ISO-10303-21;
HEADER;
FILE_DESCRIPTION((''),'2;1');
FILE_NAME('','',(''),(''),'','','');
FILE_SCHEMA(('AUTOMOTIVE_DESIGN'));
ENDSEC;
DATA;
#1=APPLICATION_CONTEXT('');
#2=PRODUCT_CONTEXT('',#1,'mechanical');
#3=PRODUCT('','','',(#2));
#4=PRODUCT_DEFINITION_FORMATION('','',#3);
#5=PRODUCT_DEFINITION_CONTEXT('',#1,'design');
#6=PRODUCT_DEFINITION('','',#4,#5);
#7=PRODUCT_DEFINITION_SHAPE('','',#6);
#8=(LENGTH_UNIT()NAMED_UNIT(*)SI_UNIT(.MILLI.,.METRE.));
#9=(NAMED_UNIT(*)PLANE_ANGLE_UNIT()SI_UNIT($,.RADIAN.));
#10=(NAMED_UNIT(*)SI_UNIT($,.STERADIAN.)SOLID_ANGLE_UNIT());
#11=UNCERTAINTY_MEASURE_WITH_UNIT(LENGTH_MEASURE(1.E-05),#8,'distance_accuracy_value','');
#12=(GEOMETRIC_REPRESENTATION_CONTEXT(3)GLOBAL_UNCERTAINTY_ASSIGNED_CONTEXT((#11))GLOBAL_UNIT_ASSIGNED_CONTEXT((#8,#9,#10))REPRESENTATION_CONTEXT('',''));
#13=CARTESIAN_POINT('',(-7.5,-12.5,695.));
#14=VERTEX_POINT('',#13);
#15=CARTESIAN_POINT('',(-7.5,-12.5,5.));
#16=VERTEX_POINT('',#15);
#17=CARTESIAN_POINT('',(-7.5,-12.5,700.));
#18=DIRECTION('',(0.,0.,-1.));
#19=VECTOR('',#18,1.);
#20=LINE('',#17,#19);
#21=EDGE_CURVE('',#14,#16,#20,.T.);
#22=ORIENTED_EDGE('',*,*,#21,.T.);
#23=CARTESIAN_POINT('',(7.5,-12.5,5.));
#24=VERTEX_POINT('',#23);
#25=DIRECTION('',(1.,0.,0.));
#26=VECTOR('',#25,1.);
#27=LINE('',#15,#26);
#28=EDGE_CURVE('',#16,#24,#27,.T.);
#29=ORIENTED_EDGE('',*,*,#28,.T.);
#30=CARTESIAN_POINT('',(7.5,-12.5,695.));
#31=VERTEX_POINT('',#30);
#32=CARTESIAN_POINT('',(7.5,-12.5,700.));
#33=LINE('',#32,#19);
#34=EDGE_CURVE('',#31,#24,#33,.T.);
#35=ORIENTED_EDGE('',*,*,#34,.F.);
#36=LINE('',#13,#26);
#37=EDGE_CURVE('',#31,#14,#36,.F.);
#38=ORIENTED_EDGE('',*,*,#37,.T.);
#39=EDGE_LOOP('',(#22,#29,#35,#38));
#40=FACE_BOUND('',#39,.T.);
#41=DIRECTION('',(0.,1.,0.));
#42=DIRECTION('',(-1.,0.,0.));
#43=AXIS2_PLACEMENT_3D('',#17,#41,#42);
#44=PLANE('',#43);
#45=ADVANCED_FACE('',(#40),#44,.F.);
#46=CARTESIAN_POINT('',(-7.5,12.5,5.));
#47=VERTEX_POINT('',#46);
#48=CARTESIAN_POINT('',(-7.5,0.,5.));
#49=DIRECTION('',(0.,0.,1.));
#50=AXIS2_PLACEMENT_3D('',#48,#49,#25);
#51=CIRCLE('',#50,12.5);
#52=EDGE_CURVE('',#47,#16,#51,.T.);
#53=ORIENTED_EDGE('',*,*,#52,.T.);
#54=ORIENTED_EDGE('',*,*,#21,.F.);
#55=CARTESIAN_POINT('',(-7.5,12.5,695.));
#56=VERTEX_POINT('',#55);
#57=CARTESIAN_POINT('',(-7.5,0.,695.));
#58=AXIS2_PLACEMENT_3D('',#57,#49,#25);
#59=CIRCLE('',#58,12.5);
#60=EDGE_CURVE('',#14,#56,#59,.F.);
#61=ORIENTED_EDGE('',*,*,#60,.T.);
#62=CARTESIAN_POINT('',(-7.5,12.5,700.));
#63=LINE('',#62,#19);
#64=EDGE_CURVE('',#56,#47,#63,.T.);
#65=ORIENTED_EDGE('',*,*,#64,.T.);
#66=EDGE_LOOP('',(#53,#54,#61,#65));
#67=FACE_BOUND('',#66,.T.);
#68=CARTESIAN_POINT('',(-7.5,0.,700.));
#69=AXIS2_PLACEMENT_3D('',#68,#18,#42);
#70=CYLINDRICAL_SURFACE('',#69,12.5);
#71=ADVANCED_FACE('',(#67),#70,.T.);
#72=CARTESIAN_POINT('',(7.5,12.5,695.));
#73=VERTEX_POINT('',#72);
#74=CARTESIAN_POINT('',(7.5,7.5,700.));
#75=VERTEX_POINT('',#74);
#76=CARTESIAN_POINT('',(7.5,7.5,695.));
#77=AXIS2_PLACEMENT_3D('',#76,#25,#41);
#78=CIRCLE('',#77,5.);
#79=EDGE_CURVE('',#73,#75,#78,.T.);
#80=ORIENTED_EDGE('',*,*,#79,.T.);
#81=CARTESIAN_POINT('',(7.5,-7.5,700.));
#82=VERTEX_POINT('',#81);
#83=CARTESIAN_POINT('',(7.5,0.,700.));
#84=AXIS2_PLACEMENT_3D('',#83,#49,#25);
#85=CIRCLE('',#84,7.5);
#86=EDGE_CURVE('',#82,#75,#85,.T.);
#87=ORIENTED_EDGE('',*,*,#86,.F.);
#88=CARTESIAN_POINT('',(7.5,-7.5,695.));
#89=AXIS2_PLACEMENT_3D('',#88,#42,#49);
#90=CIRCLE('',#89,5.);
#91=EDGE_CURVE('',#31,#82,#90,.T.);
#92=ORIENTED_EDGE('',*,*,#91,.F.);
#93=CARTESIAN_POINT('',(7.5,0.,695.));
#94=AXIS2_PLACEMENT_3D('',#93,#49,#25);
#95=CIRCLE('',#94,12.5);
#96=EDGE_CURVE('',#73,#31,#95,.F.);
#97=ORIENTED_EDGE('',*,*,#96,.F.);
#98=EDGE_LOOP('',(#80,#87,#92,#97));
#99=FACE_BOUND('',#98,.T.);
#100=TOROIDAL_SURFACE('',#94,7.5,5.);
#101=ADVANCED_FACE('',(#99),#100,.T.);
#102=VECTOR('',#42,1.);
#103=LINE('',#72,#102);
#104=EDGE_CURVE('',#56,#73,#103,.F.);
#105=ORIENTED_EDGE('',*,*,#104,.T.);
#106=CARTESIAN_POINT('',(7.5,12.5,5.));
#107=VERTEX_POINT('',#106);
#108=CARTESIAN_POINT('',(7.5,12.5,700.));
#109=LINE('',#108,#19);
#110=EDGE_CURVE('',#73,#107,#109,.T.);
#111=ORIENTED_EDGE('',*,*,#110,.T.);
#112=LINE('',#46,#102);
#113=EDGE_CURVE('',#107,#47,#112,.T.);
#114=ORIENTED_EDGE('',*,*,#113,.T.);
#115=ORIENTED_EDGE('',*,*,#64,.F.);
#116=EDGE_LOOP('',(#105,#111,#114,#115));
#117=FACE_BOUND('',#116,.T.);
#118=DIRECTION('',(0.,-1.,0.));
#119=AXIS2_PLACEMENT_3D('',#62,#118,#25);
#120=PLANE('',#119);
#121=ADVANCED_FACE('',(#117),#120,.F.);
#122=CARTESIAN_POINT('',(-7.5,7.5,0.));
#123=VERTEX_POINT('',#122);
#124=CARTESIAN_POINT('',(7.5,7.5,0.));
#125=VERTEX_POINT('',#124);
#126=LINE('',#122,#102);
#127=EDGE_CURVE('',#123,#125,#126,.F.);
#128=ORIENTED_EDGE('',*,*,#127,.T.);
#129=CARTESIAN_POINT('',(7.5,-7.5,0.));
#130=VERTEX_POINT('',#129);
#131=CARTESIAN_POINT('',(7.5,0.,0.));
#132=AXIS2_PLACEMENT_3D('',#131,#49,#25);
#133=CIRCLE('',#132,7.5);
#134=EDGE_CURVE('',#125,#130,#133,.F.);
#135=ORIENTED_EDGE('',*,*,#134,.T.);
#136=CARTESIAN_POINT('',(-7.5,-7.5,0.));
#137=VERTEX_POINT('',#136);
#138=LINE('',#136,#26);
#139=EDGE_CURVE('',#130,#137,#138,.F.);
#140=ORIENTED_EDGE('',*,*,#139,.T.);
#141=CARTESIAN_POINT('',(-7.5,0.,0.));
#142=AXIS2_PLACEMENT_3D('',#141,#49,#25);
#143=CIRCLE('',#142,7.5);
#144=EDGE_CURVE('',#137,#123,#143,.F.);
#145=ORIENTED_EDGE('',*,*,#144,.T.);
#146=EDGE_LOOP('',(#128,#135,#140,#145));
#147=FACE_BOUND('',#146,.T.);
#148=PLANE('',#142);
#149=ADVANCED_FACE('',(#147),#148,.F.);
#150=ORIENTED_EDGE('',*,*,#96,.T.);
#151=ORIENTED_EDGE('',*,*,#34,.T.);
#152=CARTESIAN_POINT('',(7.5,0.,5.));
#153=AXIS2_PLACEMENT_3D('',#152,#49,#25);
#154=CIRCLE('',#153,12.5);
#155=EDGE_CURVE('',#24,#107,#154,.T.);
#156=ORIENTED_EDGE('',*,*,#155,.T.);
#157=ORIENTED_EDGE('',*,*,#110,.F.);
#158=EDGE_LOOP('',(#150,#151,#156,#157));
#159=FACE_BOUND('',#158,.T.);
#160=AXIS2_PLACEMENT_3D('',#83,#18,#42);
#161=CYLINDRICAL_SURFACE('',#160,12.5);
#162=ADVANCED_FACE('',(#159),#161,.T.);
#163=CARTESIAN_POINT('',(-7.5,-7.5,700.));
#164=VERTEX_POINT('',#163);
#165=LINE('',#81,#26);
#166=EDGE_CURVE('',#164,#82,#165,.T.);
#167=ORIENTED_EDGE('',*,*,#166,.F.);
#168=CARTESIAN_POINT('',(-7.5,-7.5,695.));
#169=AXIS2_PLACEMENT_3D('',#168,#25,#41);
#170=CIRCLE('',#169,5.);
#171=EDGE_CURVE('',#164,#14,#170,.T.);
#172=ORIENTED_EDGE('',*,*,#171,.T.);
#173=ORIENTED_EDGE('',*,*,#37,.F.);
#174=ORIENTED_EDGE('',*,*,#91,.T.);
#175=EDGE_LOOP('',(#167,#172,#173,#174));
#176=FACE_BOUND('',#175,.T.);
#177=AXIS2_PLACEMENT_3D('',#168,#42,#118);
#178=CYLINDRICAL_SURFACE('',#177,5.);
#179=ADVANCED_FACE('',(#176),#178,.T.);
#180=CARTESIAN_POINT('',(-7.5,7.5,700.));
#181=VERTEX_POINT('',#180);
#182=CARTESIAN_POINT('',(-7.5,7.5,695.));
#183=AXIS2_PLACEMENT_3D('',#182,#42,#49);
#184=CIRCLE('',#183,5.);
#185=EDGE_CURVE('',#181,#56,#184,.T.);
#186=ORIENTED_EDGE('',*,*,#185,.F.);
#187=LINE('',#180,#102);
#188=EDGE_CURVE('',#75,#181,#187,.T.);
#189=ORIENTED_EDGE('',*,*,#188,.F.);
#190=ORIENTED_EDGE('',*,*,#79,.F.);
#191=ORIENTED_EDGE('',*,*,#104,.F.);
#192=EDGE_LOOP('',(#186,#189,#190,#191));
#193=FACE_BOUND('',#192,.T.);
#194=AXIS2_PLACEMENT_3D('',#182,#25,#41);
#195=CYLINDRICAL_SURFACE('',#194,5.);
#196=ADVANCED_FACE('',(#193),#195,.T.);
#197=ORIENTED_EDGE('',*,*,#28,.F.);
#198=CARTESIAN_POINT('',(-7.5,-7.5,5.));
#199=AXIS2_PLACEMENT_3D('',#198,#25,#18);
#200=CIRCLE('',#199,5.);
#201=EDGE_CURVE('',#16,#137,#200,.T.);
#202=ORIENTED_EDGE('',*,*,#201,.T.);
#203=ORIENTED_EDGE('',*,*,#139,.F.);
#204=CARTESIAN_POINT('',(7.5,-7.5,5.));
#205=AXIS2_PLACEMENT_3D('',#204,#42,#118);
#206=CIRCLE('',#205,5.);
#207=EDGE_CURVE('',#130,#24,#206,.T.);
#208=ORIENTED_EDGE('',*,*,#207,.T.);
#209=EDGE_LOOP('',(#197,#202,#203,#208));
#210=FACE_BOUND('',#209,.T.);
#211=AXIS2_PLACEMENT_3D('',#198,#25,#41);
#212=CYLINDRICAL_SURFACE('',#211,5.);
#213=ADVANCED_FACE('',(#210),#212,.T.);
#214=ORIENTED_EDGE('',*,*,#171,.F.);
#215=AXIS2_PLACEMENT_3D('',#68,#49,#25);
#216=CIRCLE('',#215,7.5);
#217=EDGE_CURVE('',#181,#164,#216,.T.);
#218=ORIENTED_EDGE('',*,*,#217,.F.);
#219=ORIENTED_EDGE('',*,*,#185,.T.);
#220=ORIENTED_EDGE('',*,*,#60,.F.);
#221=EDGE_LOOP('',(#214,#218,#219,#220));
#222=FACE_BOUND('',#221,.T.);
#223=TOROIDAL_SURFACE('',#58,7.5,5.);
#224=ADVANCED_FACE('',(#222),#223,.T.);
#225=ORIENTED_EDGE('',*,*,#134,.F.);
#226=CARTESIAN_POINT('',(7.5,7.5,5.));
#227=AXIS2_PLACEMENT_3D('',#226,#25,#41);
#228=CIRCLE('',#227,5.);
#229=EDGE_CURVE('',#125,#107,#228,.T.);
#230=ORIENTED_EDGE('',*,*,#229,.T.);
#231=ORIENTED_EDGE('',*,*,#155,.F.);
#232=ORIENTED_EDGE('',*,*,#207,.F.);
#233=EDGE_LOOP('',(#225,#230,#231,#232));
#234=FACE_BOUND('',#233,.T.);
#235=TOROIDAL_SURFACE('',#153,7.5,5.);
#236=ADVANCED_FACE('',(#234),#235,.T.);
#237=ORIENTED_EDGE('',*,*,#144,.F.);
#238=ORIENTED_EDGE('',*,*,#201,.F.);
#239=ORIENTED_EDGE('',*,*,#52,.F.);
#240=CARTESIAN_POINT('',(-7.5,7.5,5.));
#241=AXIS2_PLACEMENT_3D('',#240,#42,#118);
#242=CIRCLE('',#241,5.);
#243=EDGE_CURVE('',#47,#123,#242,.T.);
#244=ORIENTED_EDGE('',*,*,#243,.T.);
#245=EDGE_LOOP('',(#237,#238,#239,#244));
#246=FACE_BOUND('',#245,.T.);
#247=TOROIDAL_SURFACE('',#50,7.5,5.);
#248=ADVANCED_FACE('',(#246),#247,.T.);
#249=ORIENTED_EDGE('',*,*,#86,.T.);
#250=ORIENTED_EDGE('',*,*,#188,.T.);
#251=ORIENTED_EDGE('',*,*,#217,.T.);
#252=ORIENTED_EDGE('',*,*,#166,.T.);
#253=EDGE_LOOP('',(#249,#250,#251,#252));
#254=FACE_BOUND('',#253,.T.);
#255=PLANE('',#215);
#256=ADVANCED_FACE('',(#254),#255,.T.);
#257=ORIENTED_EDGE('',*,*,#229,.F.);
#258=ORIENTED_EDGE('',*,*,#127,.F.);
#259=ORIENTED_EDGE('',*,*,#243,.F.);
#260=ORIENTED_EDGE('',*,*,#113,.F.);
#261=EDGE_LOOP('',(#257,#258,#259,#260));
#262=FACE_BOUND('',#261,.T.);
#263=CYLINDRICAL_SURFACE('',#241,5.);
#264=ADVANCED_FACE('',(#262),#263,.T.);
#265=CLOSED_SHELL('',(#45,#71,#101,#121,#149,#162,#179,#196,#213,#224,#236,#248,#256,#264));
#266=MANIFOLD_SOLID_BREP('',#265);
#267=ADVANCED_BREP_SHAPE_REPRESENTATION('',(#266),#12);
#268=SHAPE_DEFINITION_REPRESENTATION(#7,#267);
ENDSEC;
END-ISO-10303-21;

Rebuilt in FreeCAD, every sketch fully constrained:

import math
import FreeCAD as App
import Part
import Sketcher


def edges_at(feature, points):
    """Names of the edges that pass closest to the given points."""
    edges = feature.Shape.Edges
    near = lambda p: min(range(len(edges)), key=lambda i: edges[i].distToShape(Part.Vertex(*p))[0])
    return sorted({f"Edge{near(p) + 1}" for p in points})

doc = App.newDocument("Part")
body = doc.addObject("PartDesign::Body", "Body")

# Sketch on XY plane
sketch1 = body.newObject("Sketcher::SketchObject", "Sketch")
sketch1.AttachmentSupport = (doc.getObject("XY_Plane"), [""])
sketch1.MapMode = "FlatFace"
sketch1.addGeometry([
    Part.LineSegment(App.Vector(8, 12, 0), App.Vector(-8, 12, 0)),
    Part.ArcOfCircle(Part.Circle(App.Vector(-8, 0, 0), App.Vector(0, 0, 1), 12), math.radians(90), math.radians(270)),
    Part.LineSegment(App.Vector(-8, -12, 0), App.Vector(8, -12, 0)),
    Part.ArcOfCircle(Part.Circle(App.Vector(8, 0, 0), App.Vector(0, 0, 1), 12), math.radians(-90), math.radians(90)),
], False)
sketch1.addConstraint([
    Sketcher.Constraint("Tangent", 0, 2, 1, 1),
    Sketcher.Constraint("Tangent", 1, 2, 2, 1),
    Sketcher.Constraint("Tangent", 2, 2, 3, 1),
    Sketcher.Constraint("Tangent", 3, 2, 0, 1),
    Sketcher.Constraint("Horizontal", 0),
    Sketcher.Constraint("Horizontal", 2),
    Sketcher.Constraint("Symmetric", 1, 3, 3, 3, -1, 1),
    Sketcher.Constraint("Radius", 1, 12.5),
    Sketcher.Constraint("DistanceX", 0, 2, 0, 1, 15.0),
])
pad1 = body.newObject("PartDesign::Pad", "Pad")
pad1.Profile = sketch1
pad1.Length = 700
doc.recompute()

fillet = body.newObject("PartDesign::Fillet", "Fillet")
fillet.Base = (pad1, edges_at(pad1, [
    (20, 0, 700),
    (0, 12.5, 700),
    (-20, 0, 700),
    (0, 12.5, 0),
    (20, 0, 0),
    (0, -12.5, 0),
    (-20, 0, 0),
    (0, -12.5, 700),
]))
fillet.Radius = 5

doc.recompute()
